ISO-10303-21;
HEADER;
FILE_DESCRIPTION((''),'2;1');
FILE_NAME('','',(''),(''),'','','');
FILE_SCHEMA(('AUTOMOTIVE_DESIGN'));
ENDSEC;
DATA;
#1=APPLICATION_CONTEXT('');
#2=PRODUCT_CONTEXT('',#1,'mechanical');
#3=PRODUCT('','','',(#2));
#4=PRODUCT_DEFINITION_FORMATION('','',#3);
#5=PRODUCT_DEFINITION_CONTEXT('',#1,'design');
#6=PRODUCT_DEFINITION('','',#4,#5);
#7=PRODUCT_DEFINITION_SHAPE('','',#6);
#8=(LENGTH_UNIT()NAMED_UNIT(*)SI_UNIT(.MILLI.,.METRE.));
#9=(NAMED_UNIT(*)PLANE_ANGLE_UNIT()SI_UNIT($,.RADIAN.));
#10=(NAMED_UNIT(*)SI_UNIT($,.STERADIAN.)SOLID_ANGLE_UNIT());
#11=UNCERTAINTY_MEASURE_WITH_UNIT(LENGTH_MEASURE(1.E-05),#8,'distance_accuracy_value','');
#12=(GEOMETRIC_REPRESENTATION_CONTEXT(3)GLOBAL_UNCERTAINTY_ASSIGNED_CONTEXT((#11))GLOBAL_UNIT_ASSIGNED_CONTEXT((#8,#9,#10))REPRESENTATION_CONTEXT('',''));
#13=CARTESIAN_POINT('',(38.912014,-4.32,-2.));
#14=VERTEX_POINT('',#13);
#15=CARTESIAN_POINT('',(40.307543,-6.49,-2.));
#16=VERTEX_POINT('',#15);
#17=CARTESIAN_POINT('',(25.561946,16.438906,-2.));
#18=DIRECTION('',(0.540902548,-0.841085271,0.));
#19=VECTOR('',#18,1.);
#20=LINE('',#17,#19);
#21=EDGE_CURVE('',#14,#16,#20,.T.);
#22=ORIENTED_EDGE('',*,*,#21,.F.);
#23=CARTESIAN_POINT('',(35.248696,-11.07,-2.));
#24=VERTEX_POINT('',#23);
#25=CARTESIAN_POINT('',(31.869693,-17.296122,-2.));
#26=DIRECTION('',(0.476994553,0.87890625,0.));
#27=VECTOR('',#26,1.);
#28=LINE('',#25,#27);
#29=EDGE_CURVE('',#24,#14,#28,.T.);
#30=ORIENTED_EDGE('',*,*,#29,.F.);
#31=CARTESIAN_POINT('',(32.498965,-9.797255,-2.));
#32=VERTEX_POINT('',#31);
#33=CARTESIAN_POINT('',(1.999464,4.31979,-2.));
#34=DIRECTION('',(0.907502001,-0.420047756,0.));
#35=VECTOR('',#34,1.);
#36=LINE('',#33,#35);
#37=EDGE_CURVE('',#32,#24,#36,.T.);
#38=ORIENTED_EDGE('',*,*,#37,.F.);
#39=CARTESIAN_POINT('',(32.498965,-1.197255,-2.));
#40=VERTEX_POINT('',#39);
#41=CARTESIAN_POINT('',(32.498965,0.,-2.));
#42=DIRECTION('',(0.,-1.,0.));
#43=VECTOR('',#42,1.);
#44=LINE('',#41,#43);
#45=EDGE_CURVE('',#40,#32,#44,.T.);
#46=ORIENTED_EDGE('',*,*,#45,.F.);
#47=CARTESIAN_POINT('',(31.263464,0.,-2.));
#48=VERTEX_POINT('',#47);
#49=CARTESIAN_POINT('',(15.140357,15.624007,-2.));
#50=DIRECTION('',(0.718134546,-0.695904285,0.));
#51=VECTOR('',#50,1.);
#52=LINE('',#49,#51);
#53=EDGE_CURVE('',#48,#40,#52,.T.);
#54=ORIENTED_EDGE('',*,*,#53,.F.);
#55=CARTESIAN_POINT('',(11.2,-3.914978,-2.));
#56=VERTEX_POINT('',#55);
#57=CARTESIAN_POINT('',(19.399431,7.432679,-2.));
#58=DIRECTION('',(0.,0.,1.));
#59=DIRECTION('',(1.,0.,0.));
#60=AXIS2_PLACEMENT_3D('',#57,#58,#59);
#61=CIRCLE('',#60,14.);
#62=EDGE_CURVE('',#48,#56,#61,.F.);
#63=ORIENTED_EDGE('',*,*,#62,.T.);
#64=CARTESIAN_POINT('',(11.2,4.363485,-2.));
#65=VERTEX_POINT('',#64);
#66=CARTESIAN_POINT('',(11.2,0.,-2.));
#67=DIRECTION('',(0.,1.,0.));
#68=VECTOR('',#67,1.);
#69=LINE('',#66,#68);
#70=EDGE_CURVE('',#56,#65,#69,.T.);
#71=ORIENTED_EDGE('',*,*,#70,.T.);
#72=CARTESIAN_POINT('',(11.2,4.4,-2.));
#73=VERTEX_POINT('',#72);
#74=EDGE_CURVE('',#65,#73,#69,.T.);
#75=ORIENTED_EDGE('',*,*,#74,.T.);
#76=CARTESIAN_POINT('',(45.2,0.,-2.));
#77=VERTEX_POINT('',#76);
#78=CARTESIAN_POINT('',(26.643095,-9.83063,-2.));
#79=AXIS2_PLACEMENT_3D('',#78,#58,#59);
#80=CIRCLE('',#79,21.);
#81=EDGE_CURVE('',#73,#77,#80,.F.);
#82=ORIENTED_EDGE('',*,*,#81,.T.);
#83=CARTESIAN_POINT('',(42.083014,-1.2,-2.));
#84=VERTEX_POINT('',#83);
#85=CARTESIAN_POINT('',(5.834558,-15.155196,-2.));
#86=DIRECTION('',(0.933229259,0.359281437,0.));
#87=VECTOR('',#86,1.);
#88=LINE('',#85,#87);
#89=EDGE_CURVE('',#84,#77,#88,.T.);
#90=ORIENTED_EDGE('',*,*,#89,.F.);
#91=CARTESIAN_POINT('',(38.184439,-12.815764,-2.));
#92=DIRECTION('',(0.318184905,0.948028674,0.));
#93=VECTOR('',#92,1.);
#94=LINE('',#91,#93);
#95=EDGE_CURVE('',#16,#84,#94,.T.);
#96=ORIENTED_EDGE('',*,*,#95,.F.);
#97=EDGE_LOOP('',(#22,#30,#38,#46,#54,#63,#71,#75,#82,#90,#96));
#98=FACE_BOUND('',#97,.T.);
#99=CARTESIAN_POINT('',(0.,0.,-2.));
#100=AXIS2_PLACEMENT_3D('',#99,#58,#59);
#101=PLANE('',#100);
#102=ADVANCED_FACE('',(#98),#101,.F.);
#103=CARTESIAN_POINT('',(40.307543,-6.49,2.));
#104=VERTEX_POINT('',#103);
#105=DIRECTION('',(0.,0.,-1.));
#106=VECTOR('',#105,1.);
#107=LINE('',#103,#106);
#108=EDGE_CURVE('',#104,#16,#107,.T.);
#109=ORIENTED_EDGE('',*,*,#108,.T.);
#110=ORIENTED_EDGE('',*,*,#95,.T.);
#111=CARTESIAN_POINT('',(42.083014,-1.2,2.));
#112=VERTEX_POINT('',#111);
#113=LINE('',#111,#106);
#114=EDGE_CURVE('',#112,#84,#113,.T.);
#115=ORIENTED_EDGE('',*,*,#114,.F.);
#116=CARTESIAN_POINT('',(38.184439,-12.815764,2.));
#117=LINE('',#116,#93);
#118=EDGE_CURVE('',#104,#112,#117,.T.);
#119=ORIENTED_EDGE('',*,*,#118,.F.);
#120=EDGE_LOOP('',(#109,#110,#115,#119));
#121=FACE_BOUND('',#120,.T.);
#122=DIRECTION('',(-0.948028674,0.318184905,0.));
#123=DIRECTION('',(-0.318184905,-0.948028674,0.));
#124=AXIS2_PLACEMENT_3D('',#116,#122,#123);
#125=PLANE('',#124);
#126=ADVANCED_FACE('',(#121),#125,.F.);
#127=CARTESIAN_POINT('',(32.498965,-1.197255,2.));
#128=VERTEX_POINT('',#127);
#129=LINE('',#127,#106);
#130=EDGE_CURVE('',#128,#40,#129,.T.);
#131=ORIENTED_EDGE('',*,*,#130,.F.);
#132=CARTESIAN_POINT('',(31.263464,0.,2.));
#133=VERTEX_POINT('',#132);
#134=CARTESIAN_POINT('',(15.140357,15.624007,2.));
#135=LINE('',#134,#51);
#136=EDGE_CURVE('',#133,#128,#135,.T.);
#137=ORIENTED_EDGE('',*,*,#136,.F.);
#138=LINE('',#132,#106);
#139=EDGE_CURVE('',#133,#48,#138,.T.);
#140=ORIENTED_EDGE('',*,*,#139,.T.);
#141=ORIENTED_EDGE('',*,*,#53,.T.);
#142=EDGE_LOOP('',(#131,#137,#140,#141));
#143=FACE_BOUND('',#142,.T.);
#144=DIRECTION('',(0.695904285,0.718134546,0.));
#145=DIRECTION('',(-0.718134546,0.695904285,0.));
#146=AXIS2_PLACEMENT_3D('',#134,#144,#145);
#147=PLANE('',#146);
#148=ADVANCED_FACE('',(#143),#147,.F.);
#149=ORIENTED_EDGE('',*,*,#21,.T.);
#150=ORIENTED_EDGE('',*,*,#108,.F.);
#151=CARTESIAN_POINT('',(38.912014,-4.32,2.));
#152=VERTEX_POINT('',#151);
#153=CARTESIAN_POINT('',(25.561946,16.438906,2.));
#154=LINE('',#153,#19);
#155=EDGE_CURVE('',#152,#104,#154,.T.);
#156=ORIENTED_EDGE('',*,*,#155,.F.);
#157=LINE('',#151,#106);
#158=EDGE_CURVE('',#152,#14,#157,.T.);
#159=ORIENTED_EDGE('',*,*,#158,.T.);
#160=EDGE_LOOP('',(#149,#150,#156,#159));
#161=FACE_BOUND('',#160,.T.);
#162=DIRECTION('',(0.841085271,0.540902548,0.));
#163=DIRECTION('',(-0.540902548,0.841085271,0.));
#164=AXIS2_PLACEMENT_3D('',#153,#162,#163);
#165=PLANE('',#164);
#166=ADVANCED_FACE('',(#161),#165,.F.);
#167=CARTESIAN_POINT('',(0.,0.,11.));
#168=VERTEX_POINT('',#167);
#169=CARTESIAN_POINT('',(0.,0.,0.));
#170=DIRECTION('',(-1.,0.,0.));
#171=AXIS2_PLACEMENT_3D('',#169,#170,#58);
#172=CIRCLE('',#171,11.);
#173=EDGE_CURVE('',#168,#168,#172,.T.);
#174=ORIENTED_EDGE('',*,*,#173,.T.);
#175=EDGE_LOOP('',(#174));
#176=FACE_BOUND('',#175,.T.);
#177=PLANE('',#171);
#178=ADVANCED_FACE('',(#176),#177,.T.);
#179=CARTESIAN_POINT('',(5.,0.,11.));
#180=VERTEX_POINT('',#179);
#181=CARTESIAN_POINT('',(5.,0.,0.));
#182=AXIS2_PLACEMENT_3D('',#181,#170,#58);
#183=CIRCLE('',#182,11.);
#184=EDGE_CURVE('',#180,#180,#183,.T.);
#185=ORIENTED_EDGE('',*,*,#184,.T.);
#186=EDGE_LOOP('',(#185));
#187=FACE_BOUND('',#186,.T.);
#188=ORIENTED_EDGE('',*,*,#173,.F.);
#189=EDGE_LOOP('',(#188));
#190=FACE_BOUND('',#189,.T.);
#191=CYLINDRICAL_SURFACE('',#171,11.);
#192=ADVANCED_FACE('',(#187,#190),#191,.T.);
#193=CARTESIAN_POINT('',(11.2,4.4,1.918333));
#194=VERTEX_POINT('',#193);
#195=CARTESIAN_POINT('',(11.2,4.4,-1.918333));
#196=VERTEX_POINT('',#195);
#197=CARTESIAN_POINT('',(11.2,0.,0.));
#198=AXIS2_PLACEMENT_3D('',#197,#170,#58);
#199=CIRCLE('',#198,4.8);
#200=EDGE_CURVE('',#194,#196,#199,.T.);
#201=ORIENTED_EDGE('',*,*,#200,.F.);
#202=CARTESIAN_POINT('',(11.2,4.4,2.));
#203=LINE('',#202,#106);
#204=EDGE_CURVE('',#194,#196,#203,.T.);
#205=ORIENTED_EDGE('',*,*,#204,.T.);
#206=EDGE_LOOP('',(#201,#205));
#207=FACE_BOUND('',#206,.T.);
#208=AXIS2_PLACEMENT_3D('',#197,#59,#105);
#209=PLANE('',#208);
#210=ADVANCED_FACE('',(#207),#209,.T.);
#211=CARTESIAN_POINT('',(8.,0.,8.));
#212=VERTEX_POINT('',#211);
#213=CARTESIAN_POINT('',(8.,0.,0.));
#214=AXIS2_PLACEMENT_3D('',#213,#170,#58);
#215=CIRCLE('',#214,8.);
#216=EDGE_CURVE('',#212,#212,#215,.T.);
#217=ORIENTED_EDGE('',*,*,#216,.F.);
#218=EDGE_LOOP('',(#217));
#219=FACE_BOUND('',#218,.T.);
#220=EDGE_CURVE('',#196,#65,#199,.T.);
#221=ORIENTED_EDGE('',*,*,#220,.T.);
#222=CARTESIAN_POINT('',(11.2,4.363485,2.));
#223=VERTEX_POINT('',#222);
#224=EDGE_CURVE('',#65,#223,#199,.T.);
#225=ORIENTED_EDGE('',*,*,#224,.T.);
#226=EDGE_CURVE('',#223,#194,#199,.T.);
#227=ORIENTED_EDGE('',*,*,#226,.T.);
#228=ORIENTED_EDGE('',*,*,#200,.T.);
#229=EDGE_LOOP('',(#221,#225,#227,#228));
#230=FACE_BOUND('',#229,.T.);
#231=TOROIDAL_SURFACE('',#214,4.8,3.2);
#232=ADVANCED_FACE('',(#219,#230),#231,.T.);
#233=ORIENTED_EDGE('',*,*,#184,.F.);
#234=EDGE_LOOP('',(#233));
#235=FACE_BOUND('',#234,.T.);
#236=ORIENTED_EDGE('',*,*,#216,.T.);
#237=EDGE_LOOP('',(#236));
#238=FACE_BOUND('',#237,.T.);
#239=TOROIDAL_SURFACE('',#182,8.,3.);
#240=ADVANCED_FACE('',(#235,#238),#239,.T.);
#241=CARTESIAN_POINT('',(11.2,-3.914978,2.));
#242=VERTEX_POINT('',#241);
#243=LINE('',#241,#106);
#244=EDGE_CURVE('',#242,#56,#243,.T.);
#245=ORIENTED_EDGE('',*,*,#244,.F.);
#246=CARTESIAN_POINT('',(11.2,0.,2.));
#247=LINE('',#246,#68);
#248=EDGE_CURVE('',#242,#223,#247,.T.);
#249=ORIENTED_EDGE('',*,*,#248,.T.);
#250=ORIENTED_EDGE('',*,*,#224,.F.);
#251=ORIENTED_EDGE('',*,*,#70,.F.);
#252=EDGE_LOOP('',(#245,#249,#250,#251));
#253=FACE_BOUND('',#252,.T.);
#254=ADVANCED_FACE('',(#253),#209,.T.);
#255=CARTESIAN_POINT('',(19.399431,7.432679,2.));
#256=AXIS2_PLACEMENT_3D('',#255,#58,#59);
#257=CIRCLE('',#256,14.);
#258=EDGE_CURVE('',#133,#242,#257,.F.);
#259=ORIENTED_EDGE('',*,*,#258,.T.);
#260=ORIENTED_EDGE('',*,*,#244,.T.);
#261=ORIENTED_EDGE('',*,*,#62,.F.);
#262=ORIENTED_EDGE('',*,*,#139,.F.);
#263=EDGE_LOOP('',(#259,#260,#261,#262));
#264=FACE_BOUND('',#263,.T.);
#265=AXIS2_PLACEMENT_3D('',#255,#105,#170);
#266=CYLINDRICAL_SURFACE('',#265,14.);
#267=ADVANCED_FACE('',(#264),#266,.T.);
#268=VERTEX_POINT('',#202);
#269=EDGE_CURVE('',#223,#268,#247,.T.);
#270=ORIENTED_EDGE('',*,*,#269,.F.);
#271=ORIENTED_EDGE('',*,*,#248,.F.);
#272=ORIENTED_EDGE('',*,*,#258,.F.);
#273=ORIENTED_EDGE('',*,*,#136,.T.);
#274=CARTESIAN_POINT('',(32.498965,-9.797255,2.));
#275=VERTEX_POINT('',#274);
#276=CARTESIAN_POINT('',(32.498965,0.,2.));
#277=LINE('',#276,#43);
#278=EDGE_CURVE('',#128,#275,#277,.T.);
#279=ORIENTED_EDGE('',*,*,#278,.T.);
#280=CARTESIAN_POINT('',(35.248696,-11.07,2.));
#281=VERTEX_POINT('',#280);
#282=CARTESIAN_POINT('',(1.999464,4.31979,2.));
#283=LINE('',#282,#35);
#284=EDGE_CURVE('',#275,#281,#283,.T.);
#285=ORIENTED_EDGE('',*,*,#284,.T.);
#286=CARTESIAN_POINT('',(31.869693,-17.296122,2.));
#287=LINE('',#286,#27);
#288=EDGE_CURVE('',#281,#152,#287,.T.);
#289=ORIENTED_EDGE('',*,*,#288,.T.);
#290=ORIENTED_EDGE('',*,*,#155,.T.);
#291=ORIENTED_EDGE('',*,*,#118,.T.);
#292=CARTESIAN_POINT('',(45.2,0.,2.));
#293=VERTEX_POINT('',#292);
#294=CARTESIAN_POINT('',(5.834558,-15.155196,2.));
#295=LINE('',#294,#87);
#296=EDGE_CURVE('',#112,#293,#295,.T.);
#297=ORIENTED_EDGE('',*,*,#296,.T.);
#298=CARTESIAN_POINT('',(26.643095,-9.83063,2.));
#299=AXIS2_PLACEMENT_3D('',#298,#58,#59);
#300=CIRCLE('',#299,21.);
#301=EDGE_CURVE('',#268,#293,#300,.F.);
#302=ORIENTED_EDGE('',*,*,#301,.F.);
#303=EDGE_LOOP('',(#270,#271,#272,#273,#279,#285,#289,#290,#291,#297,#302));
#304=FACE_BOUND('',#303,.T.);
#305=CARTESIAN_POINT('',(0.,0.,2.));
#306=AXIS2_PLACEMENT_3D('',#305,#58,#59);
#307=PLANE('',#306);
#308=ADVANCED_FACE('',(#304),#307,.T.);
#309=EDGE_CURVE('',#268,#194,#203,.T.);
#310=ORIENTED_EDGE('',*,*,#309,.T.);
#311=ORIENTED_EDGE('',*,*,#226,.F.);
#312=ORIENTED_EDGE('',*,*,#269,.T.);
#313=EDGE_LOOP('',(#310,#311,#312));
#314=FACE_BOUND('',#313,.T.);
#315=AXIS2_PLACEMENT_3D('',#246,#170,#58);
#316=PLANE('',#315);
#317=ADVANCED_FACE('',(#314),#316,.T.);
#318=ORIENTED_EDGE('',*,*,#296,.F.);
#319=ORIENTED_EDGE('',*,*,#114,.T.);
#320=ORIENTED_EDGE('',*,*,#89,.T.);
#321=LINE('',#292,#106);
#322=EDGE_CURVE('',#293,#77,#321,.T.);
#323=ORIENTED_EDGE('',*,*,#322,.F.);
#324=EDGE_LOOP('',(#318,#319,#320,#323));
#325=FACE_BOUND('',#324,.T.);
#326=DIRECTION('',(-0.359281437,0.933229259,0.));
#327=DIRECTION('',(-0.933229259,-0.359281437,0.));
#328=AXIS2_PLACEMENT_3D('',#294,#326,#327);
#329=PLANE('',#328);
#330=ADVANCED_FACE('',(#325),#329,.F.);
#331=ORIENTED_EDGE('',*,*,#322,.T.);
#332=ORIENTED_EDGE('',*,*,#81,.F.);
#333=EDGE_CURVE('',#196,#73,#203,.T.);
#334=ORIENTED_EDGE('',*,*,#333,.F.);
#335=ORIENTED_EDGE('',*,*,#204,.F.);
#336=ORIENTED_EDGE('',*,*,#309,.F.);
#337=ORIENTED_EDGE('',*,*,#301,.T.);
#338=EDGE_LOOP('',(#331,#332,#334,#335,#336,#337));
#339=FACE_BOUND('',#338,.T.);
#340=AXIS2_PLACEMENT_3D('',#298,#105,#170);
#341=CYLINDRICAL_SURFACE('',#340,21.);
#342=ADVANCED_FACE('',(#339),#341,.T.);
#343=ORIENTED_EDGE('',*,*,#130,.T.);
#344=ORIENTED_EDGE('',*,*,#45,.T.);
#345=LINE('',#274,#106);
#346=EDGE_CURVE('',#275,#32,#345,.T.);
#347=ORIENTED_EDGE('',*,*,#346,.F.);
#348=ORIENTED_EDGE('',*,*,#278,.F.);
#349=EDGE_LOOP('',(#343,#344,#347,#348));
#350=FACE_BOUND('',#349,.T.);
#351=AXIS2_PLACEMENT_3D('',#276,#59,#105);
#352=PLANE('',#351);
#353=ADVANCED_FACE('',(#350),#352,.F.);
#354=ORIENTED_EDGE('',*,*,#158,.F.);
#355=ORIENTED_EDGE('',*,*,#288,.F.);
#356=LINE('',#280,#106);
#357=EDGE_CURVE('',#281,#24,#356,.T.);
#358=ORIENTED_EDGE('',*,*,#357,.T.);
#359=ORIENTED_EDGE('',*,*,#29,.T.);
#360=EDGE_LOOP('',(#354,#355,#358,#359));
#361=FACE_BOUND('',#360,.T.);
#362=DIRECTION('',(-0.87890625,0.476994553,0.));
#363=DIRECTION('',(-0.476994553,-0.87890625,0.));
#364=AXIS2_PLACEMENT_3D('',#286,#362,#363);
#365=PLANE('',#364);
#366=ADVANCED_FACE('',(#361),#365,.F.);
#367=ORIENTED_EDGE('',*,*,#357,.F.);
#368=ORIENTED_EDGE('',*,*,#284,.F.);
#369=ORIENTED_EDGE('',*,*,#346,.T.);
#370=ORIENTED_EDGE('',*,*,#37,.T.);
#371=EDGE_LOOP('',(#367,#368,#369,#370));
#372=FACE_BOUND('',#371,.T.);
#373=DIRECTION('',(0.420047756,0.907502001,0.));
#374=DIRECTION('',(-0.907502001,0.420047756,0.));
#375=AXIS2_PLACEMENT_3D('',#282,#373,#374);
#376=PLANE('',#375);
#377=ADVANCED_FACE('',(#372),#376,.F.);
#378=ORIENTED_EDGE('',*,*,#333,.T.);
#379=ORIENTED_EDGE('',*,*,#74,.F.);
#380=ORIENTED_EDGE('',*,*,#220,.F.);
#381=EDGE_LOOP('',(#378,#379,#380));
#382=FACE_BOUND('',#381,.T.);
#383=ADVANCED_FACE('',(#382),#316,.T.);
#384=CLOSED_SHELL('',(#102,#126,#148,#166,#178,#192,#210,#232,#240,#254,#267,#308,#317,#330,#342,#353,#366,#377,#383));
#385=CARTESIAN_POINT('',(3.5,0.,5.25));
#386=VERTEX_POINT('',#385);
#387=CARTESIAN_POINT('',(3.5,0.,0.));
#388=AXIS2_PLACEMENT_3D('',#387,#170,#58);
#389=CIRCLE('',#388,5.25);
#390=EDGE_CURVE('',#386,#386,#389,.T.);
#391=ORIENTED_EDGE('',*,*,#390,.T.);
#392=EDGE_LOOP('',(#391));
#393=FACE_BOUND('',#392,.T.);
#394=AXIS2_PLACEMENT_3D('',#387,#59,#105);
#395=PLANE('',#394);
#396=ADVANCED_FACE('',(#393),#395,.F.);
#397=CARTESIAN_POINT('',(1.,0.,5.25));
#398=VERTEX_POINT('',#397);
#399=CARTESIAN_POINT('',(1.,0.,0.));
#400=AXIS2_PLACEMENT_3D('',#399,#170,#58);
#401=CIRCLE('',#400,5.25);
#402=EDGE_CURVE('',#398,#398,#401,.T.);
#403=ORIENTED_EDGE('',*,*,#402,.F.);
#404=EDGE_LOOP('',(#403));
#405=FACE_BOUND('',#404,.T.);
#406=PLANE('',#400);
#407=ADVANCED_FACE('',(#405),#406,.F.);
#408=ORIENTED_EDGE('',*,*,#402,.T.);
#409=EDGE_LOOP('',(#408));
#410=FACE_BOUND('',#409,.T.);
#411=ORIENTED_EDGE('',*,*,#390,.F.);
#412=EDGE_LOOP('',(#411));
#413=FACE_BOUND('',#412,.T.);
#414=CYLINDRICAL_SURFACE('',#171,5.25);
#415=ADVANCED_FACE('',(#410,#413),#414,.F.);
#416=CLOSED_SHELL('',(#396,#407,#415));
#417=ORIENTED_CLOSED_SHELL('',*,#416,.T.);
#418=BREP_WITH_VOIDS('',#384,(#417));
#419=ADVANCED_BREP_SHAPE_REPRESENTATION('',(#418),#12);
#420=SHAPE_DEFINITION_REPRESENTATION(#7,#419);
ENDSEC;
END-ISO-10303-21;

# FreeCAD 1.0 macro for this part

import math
import FreeCAD as App
import Part
import Sketcher
Q = App.Units.Quantity

doc = App.newDocument("Part")
body = doc.addObject("PartDesign::Body", "Body")

sketch1 = body.newObject("Sketcher::SketchObject", "Sketch")
sketch1.AttachmentSupport = (doc.getObject("XY_Plane"), [""])
sketch1.MapMode = "FlatFace"
sketch1.addGeometry([
    Part.LineSegment(App.Vector(0, 11, 0), App.Vector(0, 0, 0)),
    Part.LineSegment(App.Vector(0, 0, 0), App.Vector(1, 0, 0)),
    Part.LineSegment(App.Vector(1, 0, 0), App.Vector(1, 5.2, 0)),
    Part.LineSegment(App.Vector(1, 5.2, 0), App.Vector(3.5, 5.2, 0)),
    Part.LineSegment(App.Vector(3.5, 5.2, 0), App.Vector(3.5, 0, 0)),
    Part.LineSegment(App.Vector(3.5, 0, 0), App.Vector(11.2, 0, 0)),
    Part.LineSegment(App.Vector(11.2, 0, 0), App.Vector(11.2, 4.8, 0)),
    Part.ArcOfCircle(Part.Circle(App.Vector(8, 4.8, 0), App.Vector(0, 0, 1), 3.2), math.radians(0), math.radians(90)),
    Part.ArcOfCircle(Part.Circle(App.Vector(5, 8, 0), App.Vector(0, 0, 1), 3), math.radians(0), math.radians(90)),
    Part.LineSegment(App.Vector(5, 11, 0), App.Vector(0, 11, 0)),
], False)
sketch1.addConstraint([
    Sketcher.Constraint("Coincident", 0, 2, 1, 1),
    Sketcher.Constraint("Coincident", 1, 2, 2, 1),
    Sketcher.Constraint("Coincident", 2, 2, 3, 1),
    Sketcher.Constraint("Coincident", 3, 2, 4, 1),
    Sketcher.Constraint("Coincident", 4, 2, 5, 1),
    Sketcher.Constraint("Coincident", 5, 2, 6, 1),
    Sketcher.Constraint("Tangent", 6, 2, 7, 1),
    Sketcher.Constraint("Coincident", 7, 2, 8, 1),
    Sketcher.Constraint("Tangent", 8, 2, 9, 1),
    Sketcher.Constraint("Coincident", 9, 2, 0, 1),
    Sketcher.Constraint("Vertical", 0),
    Sketcher.Constraint("Horizontal", 1),
    Sketcher.Constraint("Vertical", 2),
    Sketcher.Constraint("Horizontal", 3),
    Sketcher.Constraint("Vertical", 4),
    Sketcher.Constraint("Horizontal", 5),
    Sketcher.Constraint("Vertical", 6),
    Sketcher.Constraint("Horizontal", 9),
    Sketcher.Constraint("Coincident", 0, 2, -1, 1),
    Sketcher.Constraint("PointOnObject", 4, 2, -1),
    Sketcher.Constraint("Horizontal", 8, 3, 7, 2),
    Sketcher.Constraint("Radius", 8, Q("3 mm")),
    Sketcher.Constraint("Radius", 7, Q("3.2 mm")),
    Sketcher.Constraint("DistanceX", 1, 1, 1, 2, Q("1 mm")),
    Sketcher.Constraint("DistanceX", 9, 2, 9, 1, Q("5 mm")),
    Sketcher.Constraint("DistanceY", 0, 2, 0, 1, Q("11 mm")),
    Sketcher.Constraint("DistanceX", 3, 1, 3, 2, Q("2.5 mm")),
    Sketcher.Constraint("DistanceX", 5, 1, 5, 2, Q("7.7 mm")),
    Sketcher.Constraint("DistanceY", 2, 1, 2, 2, Q("5.25 mm")),
])
revolution = body.newObject("PartDesign::Revolution", "Revolution")
revolution.Profile = sketch1
revolution.ReferenceAxis = (sketch1, ["H_Axis"])
revolution.Angle = 360

sketch2 = body.newObject("Sketcher::SketchObject", "Sketch001")
sketch2.AttachmentSupport = (doc.getObject("XY_Plane"), [""])
sketch2.MapMode = "FlatFace"
sketch2.addGeometry([
    Part.ArcOfCircle(Part.Circle(App.Vector(26.6, -9.8, 0), App.Vector(0, 0, 1), 21), math.radians(28), math.radians(137)),
    Part.LineSegment(App.Vector(11.2, 4.4, 0), App.Vector(11.2, -3.9, 0)),
    Part.ArcOfCircle(Part.Circle(App.Vector(19.4, 7.4, 0), App.Vector(0, 0, 1), 14), math.radians(-126), math.radians(-32)),
    Part.LineSegment(App.Vector(31.3, 0, 0), App.Vector(32.5, -1.2, 0)),
    Part.LineSegment(App.Vector(32.5, -1.2, 0), App.Vector(32.5, -9.8, 0)),
    Part.LineSegment(App.Vector(32.5, -9.8, 0), App.Vector(35.2, -11.1, 0)),
    Part.LineSegment(App.Vector(35.2, -11.1, 0), App.Vector(38.9, -4.3, 0)),
    Part.LineSegment(App.Vector(38.9, -4.3, 0), App.Vector(40.3, -6.5, 0)),
    Part.LineSegment(App.Vector(40.3, -6.5, 0), App.Vector(42.1, -1.2, 0)),
    Part.LineSegment(App.Vector(42.1, -1.2, 0), App.Vector(45.2, 0, 0)),
], False)
sketch2.addConstraint([
    Sketcher.Constraint("Coincident", 0, 2, 1, 1),
    Sketcher.Constraint("Coincident", 1, 2, 2, 1),
    Sketcher.Constraint("Coincident", 2, 2, 3, 1),
    Sketcher.Constraint("Coincident", 3, 2, 4, 1),
    Sketcher.Constraint("Coincident", 4, 2, 5, 1),
    Sketcher.Constraint("Coincident", 5, 2, 6, 1),
    Sketcher.Constraint("Coincident", 6, 2, 7, 1),
    Sketcher.Constraint("Coincident", 7, 2, 8, 1),
    Sketcher.Constraint("Coincident", 8, 2, 9, 1),
    Sketcher.Constraint("Coincident", 9, 2, 0, 1),
    Sketcher.Constraint("Vertical", 1),
    Sketcher.Constraint("Vertical", 4),
    Sketcher.Constraint("PointOnObject", 2, 2, -1),
    Sketcher.Constraint("PointOnObject", 9, 2, -1),
    Sketcher.Constraint("Radius", 0, Q("21 mm")),
    Sketcher.Constraint("Radius", 2, Q("14 mm")),
    Sketcher.Constraint("DistanceY", 4, 2, 4, 1, Q("8.6 mm")),
    Sketcher.Constraint("DistanceX", -1, 1, 0, 2, Q("11.2 mm")),
    Sketcher.Constraint("DistanceY", -1, 1, 0, 2, Q("4.4 mm")),
    Sketcher.Constraint("DistanceY", 8, 2, -1, 1, Q("1.2 mm")),
    Sketcher.Constraint("DistanceX", -1, 1, 9, 2, Q("45.2 mm")),
    Sketcher.Constraint("Distance", 5, Q("3.03 mm")),
    Sketcher.Constraint("Distance", 6, Q("7.68 mm")),
    Sketcher.Constraint("Distance", 7, Q("2.58 mm")),
    Sketcher.Constraint("Distance", 8, Q("5.58 mm")),
    Sketcher.Constraint("Distance", 9, Q("3.34 mm")),
    Sketcher.Constraint("DistanceY", 5, 2, -1, 1, Q("11.07 mm")),
    Sketcher.Constraint("DistanceY", 6, 2, -1, 1, Q("4.32 mm")),
    Sketcher.Constraint("DistanceY", 7, 2, -1, 1, Q("6.49 mm")),
    Sketcher.Constraint("DistanceY", 1, 2, 1, 1, Q("8.314978 mm")),
    Sketcher.Constraint("DistanceX", 2, 2, 3, 2, Q("1.235501 mm")),
    Sketcher.Constraint("Distance", 3, Q("1.720431 mm")),
])
pad1 = body.newObject("PartDesign::Pad", "Pad")
pad1.Profile = sketch2
pad1.Length = 4
pad1.Midplane = True

doc.recompute()
